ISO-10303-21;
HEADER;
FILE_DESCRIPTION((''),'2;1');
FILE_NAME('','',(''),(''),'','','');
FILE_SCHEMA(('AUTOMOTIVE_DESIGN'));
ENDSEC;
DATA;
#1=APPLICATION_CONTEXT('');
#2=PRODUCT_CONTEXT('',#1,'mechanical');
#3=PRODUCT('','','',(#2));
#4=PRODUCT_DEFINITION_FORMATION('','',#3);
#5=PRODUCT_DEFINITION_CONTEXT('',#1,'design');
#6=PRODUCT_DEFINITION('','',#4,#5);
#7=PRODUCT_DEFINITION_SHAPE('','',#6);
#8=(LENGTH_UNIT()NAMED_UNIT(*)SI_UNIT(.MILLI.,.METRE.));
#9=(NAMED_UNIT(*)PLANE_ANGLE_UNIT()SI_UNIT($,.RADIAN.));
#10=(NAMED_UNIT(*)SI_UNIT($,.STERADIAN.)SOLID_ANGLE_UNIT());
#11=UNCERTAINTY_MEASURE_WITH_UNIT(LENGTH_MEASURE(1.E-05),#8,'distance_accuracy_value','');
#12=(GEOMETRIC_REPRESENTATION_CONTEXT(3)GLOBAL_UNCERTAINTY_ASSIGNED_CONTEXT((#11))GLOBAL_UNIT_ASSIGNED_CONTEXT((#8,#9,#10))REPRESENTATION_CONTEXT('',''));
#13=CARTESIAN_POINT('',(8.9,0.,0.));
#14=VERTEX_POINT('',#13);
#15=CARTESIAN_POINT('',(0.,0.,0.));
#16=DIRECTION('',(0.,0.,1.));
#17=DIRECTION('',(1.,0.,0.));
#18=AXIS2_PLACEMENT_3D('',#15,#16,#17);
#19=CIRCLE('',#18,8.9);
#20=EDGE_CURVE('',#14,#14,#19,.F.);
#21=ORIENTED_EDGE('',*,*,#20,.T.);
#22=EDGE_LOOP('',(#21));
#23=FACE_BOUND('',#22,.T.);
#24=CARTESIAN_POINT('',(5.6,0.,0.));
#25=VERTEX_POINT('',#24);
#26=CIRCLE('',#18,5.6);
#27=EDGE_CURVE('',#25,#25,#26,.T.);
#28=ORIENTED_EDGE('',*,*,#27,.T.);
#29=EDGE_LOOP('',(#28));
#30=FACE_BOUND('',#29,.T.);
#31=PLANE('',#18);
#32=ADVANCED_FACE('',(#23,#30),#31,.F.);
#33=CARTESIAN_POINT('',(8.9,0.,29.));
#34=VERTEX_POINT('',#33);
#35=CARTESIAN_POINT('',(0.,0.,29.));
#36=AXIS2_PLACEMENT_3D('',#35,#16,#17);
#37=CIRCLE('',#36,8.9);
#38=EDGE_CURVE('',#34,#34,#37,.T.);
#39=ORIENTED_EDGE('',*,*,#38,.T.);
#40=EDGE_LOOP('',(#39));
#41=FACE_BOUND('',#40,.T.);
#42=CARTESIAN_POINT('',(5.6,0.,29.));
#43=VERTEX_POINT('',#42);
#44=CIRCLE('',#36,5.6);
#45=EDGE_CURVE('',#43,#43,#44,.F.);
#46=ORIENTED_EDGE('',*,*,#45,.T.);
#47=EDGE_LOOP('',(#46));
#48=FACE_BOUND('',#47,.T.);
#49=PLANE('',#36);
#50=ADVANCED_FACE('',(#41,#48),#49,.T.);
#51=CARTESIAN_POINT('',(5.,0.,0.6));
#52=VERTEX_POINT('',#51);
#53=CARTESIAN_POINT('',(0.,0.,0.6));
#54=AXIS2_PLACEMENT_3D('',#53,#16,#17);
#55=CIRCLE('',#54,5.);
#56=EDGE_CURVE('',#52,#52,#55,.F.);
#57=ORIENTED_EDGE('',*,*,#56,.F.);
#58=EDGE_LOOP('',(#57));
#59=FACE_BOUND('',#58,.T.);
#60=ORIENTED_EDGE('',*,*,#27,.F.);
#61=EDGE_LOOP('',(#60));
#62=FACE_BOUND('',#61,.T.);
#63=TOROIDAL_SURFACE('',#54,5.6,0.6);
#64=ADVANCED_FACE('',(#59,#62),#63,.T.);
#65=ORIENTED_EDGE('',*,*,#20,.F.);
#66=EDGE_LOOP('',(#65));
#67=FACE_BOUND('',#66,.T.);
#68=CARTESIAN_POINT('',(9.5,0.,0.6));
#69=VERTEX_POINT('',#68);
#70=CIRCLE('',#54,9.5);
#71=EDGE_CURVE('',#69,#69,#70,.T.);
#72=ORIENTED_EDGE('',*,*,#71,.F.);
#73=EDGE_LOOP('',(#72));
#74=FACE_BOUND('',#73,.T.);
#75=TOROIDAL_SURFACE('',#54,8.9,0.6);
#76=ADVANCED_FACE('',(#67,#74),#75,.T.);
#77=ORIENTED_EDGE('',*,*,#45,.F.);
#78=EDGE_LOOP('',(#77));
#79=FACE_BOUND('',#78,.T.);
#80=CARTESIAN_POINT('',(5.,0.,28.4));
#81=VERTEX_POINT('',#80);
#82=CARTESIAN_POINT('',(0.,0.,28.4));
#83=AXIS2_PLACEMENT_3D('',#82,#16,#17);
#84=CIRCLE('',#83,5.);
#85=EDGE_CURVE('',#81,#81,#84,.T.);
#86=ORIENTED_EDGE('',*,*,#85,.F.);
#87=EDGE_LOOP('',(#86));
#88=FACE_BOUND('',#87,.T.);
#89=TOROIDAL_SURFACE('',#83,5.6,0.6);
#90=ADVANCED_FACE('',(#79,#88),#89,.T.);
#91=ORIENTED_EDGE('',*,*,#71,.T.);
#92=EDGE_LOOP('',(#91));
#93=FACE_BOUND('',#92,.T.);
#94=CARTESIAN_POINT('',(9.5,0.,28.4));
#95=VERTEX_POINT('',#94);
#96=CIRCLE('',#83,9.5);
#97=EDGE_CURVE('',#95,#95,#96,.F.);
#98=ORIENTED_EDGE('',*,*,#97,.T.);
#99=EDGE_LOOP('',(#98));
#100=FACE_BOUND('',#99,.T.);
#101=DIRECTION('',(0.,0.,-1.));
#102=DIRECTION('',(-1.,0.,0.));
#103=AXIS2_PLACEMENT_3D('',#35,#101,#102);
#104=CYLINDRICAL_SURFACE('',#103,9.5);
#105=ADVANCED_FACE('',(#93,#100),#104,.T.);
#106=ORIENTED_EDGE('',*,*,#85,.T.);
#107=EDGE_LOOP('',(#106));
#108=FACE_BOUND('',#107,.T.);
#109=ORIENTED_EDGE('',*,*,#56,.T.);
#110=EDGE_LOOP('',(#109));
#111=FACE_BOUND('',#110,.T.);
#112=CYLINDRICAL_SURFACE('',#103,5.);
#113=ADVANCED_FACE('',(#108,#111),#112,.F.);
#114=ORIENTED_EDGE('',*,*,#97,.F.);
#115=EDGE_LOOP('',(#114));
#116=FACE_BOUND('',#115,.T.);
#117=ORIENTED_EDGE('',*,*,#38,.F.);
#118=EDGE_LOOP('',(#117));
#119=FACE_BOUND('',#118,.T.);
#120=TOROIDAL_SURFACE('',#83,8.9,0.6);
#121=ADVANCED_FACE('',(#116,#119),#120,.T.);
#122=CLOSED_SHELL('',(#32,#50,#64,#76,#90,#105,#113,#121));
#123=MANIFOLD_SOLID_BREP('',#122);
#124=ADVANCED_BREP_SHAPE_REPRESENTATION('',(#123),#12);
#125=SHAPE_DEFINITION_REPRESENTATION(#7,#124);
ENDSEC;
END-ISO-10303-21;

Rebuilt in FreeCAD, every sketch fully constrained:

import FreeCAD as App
import Part
import Sketcher

V = App.Vector


def edges_at(feature, points):
    """Names of the edges that pass closest to the given points."""
    edges = feature.Shape.Edges
    near = lambda p: min(range(len(edges)), key=lambda i: edges[i].distToShape(Part.Vertex(*p))[0])
    return sorted({f"Edge{near(p) + 1}" for p in points})

doc = App.newDocument("Part")
body = doc.addObject("PartDesign::Body", "Body")

sketch1 = body.newObject("Sketcher::SketchObject", "Sketch")
sketch1.AttachmentSupport = (doc.getObject("XY_Plane"), [""])
sketch1.MapMode = "FlatFace"
sketch1.addGeometry(Part.Circle(V(0, 0, 0), V(0, 0, 1), 10), False)
sketch1.addGeometry(Part.Circle(V(0, 0, 0), V(0, 0, 1), 5), False)
sketch1.addConstraint(Sketcher.Constraint("Coincident", 0, 3, -1, 1))
sketch1.addConstraint(Sketcher.Constraint("Coincident", 1, 3, -1, 1))
sketch1.addConstraint(Sketcher.Constraint("Diameter", 0, 19.0))
sketch1.addConstraint(Sketcher.Constraint("Diameter", 1, 10.0))
pad1 = body.newObject("PartDesign::Pad", "Pad")
pad1.Profile = sketch1
pad1.Length = 29
doc.recompute()

fillet = body.newObject("PartDesign::Fillet", "Fillet")
fillet.Base = (pad1, edges_at(pad1, [
    (-9.5, 0, 0),
    (-9.5, 0, 29),
    (-5, 0, 0),
    (-5, 0, 29),
]))
fillet.Radius = 0.6

doc.recompute()
